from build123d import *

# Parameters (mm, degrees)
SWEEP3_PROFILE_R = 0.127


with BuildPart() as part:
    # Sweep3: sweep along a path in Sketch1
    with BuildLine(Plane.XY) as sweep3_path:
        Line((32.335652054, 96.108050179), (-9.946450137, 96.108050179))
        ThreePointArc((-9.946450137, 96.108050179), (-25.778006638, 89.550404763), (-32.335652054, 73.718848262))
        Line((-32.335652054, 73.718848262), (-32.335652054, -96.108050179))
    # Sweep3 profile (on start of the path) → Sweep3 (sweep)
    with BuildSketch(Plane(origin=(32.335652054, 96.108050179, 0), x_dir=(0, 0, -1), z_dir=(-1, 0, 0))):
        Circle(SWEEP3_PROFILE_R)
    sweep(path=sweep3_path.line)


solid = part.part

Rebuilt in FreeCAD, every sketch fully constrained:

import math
import FreeCAD as App
import Part
import Sketcher

V = App.Vector
Q = App.Units.Quantity

doc = App.newDocument("Part")
body = doc.addObject("PartDesign::Body", "Body")

sketch1 = doc.addObject("Sketcher::SketchObject", "Sketch")
body.addObject(sketch1)
sketch1.AttachmentSupport = (doc.YZ_Plane, [""])
sketch1.MapMode = "FlatFace"
sketch1.AttachmentOffset = App.Placement(V(0, 0, 32.335652), App.Rotation())
sketch1.addGeometry(Part.Circle(V(96.10805, 0, 0), V(0, 0, 1), 0.127), False)
sketch1.addConstraint([
    Sketcher.Constraint("PointOnObject", 0, 3, -1),
    Sketcher.Constraint("Diameter", 0, Q("0.01 in")),
    Sketcher.Constraint("DistanceX", -1, 1, 0, 3, Q("96.10805 mm")),
])

sketch2 = doc.addObject("Sketcher::SketchObject", "Sketch001")
body.addObject(sketch2)
sketch2.AttachmentSupport = (doc.XY_Plane, [""])
sketch2.MapMode = "FlatFace"
sketch2.addGeometry([
    Part.LineSegment(V(32.335652, 96.10805, 0), V(-9.94645, 96.10805, 0)),
    Part.ArcOfCircle(Part.Circle(V(-9.94645, 73.718848, 0), V(0, 0, 1), 22.389202), math.radians(90), math.radians(180)),
    Part.LineSegment(V(-32.335652, 73.718848, 0), V(-32.335652, -96.10805, 0)),
], False)
sketch2.addConstraint([
    Sketcher.Constraint("Tangent", 0, 2, 1, 1),
    Sketcher.Constraint("Tangent", 1, 2, 2, 1),
    Sketcher.Constraint("Horizontal", 0),
    Sketcher.Constraint("Vertical", 2),
    Sketcher.Constraint("Symmetric", 0, 1, 2, 2, -1, 1),
    Sketcher.Constraint("Radius", 1, Q("22.389202 mm")),
    Sketcher.Constraint("DistanceY", 2, 2, 2, 1, Q("169.826898 mm")),
    Sketcher.Constraint("DistanceX", 0, 2, 0, 1, Q("42.282102 mm")),
])
doc.recompute()

additivepipe = doc.addObject("PartDesign::AdditivePipe", "AdditivePipe")
body.addObject(additivepipe)
additivepipe.Profile = sketch1
additivepipe.Spine = (sketch2, ["Edge1", "Edge2", "Edge3"])

doc.recompute()
